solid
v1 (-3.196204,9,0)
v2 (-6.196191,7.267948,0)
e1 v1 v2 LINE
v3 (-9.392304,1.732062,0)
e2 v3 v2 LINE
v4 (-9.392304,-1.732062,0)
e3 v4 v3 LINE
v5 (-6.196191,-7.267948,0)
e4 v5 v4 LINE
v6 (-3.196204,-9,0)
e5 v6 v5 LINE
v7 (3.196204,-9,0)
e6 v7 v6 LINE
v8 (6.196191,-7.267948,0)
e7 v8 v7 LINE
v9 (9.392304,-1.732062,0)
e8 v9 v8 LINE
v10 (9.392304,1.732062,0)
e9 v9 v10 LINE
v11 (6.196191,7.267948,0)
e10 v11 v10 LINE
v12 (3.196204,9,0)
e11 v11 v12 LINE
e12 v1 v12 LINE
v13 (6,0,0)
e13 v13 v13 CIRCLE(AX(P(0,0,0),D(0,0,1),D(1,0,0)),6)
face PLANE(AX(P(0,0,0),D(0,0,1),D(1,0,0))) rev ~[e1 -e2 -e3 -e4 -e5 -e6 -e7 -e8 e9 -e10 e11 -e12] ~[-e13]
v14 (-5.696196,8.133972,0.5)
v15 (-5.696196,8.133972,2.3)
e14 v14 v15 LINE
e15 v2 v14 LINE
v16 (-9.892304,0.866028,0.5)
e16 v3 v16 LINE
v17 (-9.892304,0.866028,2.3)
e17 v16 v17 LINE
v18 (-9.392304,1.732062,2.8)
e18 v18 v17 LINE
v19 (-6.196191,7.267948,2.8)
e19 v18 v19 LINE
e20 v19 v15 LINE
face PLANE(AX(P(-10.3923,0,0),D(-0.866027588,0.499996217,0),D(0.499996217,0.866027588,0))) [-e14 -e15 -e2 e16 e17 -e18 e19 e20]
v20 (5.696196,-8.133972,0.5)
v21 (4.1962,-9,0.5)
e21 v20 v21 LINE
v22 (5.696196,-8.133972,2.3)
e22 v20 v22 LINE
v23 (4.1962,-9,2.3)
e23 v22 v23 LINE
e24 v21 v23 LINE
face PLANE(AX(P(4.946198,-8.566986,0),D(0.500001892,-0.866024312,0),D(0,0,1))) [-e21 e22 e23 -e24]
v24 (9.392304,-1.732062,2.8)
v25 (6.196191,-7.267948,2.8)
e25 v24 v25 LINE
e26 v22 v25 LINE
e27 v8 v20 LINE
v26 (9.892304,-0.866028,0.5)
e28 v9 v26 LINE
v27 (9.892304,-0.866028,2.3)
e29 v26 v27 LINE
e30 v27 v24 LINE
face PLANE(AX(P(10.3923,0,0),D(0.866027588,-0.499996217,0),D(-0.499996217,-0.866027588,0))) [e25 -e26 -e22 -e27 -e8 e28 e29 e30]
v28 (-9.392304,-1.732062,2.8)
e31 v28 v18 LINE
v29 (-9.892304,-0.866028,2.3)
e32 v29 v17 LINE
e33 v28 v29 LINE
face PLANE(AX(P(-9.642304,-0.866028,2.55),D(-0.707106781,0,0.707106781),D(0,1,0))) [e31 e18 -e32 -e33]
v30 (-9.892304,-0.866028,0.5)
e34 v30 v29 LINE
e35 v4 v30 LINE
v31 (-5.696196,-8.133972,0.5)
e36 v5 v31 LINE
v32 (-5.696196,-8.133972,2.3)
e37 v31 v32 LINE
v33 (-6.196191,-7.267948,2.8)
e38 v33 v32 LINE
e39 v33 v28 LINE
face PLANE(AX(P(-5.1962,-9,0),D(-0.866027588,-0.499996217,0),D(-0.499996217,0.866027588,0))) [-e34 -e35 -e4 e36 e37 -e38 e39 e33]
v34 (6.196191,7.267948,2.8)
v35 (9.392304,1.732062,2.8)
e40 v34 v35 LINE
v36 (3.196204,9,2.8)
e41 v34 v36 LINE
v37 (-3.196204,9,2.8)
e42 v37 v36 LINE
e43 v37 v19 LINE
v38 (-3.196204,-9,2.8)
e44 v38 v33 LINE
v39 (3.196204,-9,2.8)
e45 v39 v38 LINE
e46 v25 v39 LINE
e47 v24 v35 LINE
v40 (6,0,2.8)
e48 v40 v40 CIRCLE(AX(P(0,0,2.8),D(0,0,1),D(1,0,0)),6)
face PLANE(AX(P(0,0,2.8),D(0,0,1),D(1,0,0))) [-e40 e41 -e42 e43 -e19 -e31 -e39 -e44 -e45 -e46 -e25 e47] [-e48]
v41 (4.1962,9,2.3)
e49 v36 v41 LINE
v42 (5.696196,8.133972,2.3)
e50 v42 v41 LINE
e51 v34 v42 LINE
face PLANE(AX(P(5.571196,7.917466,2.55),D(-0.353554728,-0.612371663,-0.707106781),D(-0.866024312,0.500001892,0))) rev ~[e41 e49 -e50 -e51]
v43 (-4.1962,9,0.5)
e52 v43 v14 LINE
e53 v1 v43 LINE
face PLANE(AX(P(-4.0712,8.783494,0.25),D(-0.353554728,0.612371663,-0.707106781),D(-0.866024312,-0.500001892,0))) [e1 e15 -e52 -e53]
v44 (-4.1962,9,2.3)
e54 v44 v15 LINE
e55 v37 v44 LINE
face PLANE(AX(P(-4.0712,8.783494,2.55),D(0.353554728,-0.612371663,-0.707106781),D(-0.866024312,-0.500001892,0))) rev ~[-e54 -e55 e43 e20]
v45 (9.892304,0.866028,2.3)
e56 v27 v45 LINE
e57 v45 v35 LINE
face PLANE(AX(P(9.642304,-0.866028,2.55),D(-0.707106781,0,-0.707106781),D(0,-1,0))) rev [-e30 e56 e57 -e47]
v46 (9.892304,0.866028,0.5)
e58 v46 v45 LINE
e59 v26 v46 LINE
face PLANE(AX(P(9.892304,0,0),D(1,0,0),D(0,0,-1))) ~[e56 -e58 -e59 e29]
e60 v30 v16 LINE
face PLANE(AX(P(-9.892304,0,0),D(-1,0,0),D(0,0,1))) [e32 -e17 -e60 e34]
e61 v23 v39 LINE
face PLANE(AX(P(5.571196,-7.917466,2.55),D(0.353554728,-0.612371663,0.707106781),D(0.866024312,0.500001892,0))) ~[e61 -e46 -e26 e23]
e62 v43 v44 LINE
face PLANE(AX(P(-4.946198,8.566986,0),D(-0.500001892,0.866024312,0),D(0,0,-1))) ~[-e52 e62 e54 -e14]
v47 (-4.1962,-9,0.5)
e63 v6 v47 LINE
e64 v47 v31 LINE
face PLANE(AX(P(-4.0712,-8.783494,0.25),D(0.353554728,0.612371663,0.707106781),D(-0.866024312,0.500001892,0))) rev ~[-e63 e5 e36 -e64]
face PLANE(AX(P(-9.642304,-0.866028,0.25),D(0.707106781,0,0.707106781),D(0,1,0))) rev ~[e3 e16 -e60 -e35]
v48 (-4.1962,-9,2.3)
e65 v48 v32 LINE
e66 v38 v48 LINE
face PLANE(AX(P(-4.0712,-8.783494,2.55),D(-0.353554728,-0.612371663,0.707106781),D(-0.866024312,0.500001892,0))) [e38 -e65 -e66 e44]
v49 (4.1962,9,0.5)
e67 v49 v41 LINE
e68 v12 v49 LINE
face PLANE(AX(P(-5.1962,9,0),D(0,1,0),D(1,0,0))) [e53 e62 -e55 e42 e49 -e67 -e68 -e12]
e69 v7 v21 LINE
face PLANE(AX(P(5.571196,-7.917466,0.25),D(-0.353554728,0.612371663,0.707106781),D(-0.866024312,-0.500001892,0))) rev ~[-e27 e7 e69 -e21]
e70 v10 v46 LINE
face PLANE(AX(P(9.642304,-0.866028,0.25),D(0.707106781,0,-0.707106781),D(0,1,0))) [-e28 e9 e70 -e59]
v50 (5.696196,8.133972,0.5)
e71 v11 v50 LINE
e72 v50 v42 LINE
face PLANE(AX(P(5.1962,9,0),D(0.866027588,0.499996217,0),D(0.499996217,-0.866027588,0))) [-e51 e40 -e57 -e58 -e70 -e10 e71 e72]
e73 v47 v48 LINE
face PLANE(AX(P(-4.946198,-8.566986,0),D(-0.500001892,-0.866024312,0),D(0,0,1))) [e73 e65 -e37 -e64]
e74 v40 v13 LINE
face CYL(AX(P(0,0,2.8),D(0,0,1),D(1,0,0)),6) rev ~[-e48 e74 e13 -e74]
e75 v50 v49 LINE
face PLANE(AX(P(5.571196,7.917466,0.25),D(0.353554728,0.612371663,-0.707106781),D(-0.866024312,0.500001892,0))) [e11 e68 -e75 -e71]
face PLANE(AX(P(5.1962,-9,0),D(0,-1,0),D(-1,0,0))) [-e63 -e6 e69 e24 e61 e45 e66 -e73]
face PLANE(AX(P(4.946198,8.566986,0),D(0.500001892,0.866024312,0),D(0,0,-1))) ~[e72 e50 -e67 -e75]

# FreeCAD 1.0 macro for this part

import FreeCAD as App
import Part
import Sketcher

V = App.Vector
Q = App.Units.Quantity


def edges_at(feature, points):
    """Names of the edges that pass closest to the given points."""
    edges = feature.Shape.Edges
    near = lambda p: min(range(len(edges)), key=lambda i: edges[i].distToShape(Part.Vertex(*p))[0])
    return sorted({f"Edge{near(p) + 1}" for p in points})

doc = App.newDocument("Part")
body = doc.addObject("PartDesign::Body", "Body")

sketch1 = doc.addObject("Sketcher::SketchObject", "Sketch")
body.addObject(sketch1)
sketch1.AttachmentSupport = (doc.XY_Plane, [""])
sketch1.MapMode = "FlatFace"
sketch1.addGeometry(Part.LineSegment(V(5, -9, 0), V(10, 0, 0)), False)
sketch1.addGeometry(Part.LineSegment(V(10, 0, 0), V(5, 9, 0)), False)
sketch1.addGeometry(Part.LineSegment(V(5, 9, 0), V(-5, 9, 0)), False)
sketch1.addGeometry(Part.LineSegment(V(-5, 9, 0), V(-10, 0, 0)), False)
sketch1.addGeometry(Part.LineSegment(V(-10, 0, 0), V(-5, -9, 0)), False)
sketch1.addGeometry(Part.LineSegment(V(-5, -9, 0), V(5, -9, 0)), False)
sketch1.addConstraint(Sketcher.Constraint("Coincident", 0, 2, 1, 1))
sketch1.addConstraint(Sketcher.Constraint("Coincident", 1, 2, 2, 1))
sketch1.addConstraint(Sketcher.Constraint("Coincident", 2, 2, 3, 1))
sketch1.addConstraint(Sketcher.Constraint("Coincident", 3, 2, 4, 1))
sketch1.addConstraint(Sketcher.Constraint("Coincident", 4, 2, 5, 1))
sketch1.addConstraint(Sketcher.Constraint("Coincident", 5, 2, 0, 1))
sketch1.addConstraint(Sketcher.Constraint("Horizontal", 2))
sketch1.addConstraint(Sketcher.Constraint("Horizontal", 5))
sketch1.addConstraint(Sketcher.Constraint("Symmetric", 0, 2, 3, 2, -1, 1))
sketch1.addConstraint(Sketcher.Constraint("Symmetric", 1, 2, 4, 2, -1, 1))
sketch1.addConstraint(Sketcher.Constraint("PointOnObject", 0, 2, -1))
sketch1.addConstraint(Sketcher.Constraint("Parallel", 0, 3))
sketch1.addConstraint(Sketcher.Constraint("Vertical", 2, 2, 4, 2))
sketch1.addConstraint(Sketcher.Constraint("DistanceY", 4, 2, 2, 2, Q("18 mm")))
sketch1.addConstraint(Sketcher.Constraint("Angle", 0, Q("60.0003 deg")))
sketch1.addConstraint(Sketcher.Constraint("DistanceX", 2, 2, 2, 1, Q("10.3924 mm")))
pad1 = doc.addObject("PartDesign::Pad", "Pad")
body.addObject(pad1)
pad1.Profile = sketch1
pad1.Length = 2.8

sketch2 = doc.addObject("Sketcher::SketchObject", "Sketch001")
body.addObject(sketch2)
sketch2.AttachmentSupport = (doc.XY_Plane, [""])
sketch2.MapMode = "FlatFace"
sketch2.AttachmentOffset = App.Placement(V(0, 0, 2.8), App.Rotation())
sketch2.addGeometry(Part.Circle(V(0, 0, 0), V(0, 0, 1), 6), False)
sketch2.addConstraint(Sketcher.Constraint("Coincident", 0, 3, -1, 1))
sketch2.addConstraint(Sketcher.Constraint("Diameter", 0, Q("12 mm")))
pocket1 = doc.addObject("PartDesign::Pocket", "Pocket")
body.addObject(pocket1)
pocket1.Profile = sketch2
pocket1.Type = "ThroughAll"
doc.recompute()

chamfer = doc.addObject("PartDesign::Chamfer", "Chamfer")
body.addObject(chamfer)
chamfer.Base = (pocket1, edges_at(pocket1, [
    (5.196, 9, 1.4),
    (-5.196, 9, 1.4),
    (10.392, 0, 1.4),
    (5.196, -9, 1.4),
    (-5.196, -9, 1.4),
    (-10.392, 0, 1.4),
]))
chamfer.Size = 1
doc.recompute()

chamfer2 = doc.addObject("PartDesign::Chamfer", "Chamfer001")
body.addObject(chamfer2)
chamfer2.Base = (chamfer, edges_at(chamfer, [
    (-9.892, 0, 2.8),
    (-4.946, -8.567, 2.8),
    (4.946, -8.567, 2.8),
    (9.892, 0, 2.8),
    (4.946, 8.567, 2.8),
    (-4.946, 8.567, 2.8),
    (-4.946, 8.567, 0),
    (-9.892, 0, 0),
    (-4.946, -8.567, 0),
    (4.946, -8.567, 0),
    (9.892, 0, 0),
    (4.946, 8.567, 0),
]))
chamfer2.Size = 0.5

doc.recompute()
